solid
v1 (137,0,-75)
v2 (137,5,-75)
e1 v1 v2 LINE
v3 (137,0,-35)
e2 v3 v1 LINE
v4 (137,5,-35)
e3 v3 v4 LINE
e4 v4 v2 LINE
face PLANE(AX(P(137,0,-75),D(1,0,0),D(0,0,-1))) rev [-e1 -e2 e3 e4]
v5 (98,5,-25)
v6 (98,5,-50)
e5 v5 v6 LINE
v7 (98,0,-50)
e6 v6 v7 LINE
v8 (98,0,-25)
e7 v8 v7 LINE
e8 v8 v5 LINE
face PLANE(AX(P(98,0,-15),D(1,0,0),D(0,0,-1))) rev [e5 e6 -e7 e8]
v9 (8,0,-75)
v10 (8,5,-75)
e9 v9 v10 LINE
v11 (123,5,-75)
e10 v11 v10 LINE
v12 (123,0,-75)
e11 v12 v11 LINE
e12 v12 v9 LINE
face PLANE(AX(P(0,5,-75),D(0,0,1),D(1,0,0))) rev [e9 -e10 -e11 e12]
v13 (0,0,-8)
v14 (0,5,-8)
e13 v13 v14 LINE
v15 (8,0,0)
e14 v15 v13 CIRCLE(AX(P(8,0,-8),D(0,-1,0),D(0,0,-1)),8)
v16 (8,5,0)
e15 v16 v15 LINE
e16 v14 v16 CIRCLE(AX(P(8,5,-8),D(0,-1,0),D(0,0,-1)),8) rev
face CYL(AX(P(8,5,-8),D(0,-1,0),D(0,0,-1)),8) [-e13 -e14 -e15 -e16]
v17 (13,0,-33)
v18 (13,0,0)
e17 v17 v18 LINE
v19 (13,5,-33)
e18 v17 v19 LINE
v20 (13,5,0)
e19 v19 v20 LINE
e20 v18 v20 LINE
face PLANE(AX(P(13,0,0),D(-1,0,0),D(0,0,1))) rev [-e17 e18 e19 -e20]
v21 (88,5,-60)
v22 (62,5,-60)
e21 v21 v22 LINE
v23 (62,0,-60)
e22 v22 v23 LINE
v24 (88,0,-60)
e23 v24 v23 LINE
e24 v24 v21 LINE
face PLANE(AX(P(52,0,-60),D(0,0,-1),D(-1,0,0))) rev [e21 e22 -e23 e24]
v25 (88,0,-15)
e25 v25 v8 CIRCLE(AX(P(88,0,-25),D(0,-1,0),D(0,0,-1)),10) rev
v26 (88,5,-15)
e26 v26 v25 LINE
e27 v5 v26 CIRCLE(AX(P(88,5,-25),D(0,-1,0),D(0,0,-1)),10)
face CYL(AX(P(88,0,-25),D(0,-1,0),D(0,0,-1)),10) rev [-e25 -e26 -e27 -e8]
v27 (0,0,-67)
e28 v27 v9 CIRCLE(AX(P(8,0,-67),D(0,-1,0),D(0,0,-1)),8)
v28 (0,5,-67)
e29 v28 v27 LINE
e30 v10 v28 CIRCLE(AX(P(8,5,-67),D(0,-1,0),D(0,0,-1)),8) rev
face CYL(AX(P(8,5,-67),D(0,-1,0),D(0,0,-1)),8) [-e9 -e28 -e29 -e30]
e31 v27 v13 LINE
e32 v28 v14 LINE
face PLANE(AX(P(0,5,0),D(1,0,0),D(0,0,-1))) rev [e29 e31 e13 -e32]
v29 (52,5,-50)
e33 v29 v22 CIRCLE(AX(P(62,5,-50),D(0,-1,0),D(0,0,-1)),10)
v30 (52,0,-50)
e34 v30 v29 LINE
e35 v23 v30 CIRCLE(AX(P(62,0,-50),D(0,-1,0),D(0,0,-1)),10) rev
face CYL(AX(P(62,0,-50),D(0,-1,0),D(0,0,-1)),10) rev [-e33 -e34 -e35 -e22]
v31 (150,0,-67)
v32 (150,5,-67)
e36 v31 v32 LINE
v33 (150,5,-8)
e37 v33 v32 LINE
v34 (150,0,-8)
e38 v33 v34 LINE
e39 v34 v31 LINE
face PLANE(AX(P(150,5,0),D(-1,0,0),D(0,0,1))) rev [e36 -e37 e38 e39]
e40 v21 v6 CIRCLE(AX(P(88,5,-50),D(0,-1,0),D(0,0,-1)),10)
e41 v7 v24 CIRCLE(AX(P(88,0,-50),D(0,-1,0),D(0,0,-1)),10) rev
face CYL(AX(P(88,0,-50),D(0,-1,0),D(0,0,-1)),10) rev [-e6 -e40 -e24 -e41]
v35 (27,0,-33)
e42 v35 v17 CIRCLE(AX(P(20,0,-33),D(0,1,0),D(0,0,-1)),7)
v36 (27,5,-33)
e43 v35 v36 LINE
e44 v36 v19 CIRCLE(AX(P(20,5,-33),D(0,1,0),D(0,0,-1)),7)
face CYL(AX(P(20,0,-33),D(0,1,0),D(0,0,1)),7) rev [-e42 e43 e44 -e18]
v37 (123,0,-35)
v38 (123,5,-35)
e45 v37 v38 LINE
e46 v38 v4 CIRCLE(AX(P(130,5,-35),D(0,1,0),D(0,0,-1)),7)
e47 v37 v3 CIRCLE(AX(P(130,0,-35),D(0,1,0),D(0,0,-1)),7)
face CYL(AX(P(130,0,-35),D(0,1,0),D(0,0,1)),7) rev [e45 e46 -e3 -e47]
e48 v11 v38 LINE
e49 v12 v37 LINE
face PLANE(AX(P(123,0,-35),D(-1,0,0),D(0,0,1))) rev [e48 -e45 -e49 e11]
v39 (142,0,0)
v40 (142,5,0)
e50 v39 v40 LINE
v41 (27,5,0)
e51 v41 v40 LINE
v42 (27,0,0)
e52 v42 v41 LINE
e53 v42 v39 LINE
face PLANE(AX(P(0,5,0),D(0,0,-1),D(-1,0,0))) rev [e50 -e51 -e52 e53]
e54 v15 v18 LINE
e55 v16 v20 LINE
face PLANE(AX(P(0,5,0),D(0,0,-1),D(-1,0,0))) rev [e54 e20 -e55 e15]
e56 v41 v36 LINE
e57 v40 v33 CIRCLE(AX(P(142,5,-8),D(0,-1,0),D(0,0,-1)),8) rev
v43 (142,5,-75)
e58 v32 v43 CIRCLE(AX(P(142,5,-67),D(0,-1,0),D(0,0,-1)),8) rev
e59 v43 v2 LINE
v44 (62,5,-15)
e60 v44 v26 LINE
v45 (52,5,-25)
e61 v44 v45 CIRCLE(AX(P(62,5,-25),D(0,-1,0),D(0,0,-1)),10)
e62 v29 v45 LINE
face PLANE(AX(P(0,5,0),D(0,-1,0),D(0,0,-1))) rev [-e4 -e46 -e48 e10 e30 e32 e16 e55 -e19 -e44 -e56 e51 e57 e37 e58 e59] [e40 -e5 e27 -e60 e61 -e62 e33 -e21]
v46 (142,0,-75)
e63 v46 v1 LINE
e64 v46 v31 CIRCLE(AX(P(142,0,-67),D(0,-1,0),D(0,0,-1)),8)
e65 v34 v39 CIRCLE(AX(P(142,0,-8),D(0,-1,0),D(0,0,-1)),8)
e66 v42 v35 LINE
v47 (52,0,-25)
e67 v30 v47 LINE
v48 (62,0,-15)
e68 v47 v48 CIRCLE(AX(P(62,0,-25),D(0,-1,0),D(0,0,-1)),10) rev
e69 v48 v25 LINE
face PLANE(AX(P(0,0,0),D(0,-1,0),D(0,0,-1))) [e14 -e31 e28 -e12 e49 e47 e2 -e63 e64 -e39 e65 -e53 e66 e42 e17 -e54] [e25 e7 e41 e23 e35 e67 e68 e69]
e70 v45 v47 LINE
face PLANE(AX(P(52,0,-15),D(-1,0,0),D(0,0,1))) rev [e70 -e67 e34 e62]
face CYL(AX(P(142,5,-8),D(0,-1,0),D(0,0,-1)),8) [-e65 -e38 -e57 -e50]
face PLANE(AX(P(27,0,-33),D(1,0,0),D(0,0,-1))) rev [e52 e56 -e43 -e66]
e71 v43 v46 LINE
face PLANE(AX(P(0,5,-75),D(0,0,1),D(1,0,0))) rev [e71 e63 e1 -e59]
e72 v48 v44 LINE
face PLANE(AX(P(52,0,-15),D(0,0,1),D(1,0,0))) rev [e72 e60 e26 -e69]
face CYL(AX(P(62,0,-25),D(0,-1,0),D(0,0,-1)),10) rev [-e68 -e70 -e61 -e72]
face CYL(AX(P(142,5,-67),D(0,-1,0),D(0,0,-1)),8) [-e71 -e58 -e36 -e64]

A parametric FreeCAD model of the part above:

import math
import FreeCAD as App
import Part
import Sketcher

V = App.Vector


def edges_at(feature, points):
    """Names of the edges that pass closest to the given points."""
    edges = feature.Shape.Edges
    near = lambda p: min(range(len(edges)), key=lambda i: edges[i].distToShape(Part.Vertex(*p))[0])
    return sorted({f"Edge{near(p) + 1}" for p in points})


def add_polygon(sketch, points):
    """Adds a closed chain of lines whose ends are joined by coincident constraints."""
    first, n = sketch.GeometryCount, len(points)
    for a, b in zip(points, points[1:] + points[:1]):
        sketch.addGeometry(Part.LineSegment(App.Vector(*a, 0), App.Vector(*b, 0)), False)
    for i in range(n):
        sketch.addConstraint(Sketcher.Constraint("Coincident", first + i, 2, first + (i + 1) % n, 1))

doc = App.newDocument("Part")
body = doc.addObject("PartDesign::Body", "Body")

sketch1 = body.newObject("Sketcher::SketchObject", "Sketch")
sketch1.AttachmentSupport = (doc.getObject("XZ_Plane"), [""])
sketch1.MapMode = "FlatFace"
add_polygon(sketch1, [(0, -75), (0, 0), (150, 0), (150, -75)])
sketch1.addConstraint(Sketcher.Constraint("Vertical", 0))
sketch1.addConstraint(Sketcher.Constraint("Horizontal", 1))
sketch1.addConstraint(Sketcher.Constraint("Vertical", 2))
sketch1.addConstraint(Sketcher.Constraint("Horizontal", 3))
sketch1.addConstraint(Sketcher.Constraint("Coincident", 0, 2, -1, 1))
sketch1.addConstraint(Sketcher.Constraint("DistanceX", 1, 1, 1, 2, 150.0))
sketch1.addConstraint(Sketcher.Constraint("DistanceY", 0, 1, 0, 2, 75.0))
pad1 = body.newObject("PartDesign::Pad", "Pad")
pad1.Profile = sketch1
pad1.Length = 5
pad1.Reversed = True

sketch2 = body.newObject("Sketcher::SketchObject", "Sketch001")
sketch2.AttachmentSupport = (doc.getObject("XZ_Plane"), [""])
sketch2.MapMode = "FlatFace"
sketch2.AttachmentOffset = App.Placement(V(0, 0, -5), App.Rotation())
sketch2.addGeometry(Part.LineSegment(V(13, -33, 0), V(13, 0, 0)), False)
sketch2.addGeometry(Part.LineSegment(V(13, 0, 0), V(27, 0, 0)), False)
sketch2.addGeometry(Part.LineSegment(V(27, 0, 0), V(27, -33, 0)), False)
sketch2.addGeometry(Part.ArcOfCircle(Part.Circle(V(20, -33, 0), V(0, 0, 1), 7), math.radians(180), math.radians(360)), False)
sketch2.addConstraint(Sketcher.Constraint("Coincident", 0, 2, 1, 1))
sketch2.addConstraint(Sketcher.Constraint("Coincident", 1, 2, 2, 1))
sketch2.addConstraint(Sketcher.Constraint("Tangent", 2, 2, 3, 2))
sketch2.addConstraint(Sketcher.Constraint("Tangent", 3, 1, 0, 1))
sketch2.addConstraint(Sketcher.Constraint("Vertical", 0))
sketch2.addConstraint(Sketcher.Constraint("Horizontal", 1))
sketch2.addConstraint(Sketcher.Constraint("Vertical", 2))
sketch2.addConstraint(Sketcher.Constraint("PointOnObject", 0, 2, -1))
sketch2.addConstraint(Sketcher.Constraint("Radius", 3, 7.0))
sketch2.addConstraint(Sketcher.Constraint("DistanceY", 0, 1, 0, 2, 33.0))
sketch2.addConstraint(Sketcher.Constraint("DistanceX", -1, 1, 3, 3, 20.0))
pocket1 = body.newObject("PartDesign::Pocket", "Pocket")
pocket1.Profile = sketch2
pocket1.Type = "ThroughAll"
pocket1.Reversed = True

sketch3 = body.newObject("Sketcher::SketchObject", "Sketch002")
sketch3.AttachmentSupport = (doc.getObject("XZ_Plane"), [""])
sketch3.MapMode = "FlatFace"
sketch3.AttachmentOffset = App.Placement(V(0, 0, -5), App.Rotation())
sketch3.addGeometry(Part.LineSegment(V(137, -35, 0), V(137, -75, 0)), False)
sketch3.addGeometry(Part.LineSegment(V(137, -75, 0), V(123, -75, 0)), False)
sketch3.addGeometry(Part.LineSegment(V(123, -75, 0), V(123, -35, 0)), False)
sketch3.addGeometry(Part.ArcOfCircle(Part.Circle(V(130, -35, 0), V(0, 0, 1), 7), math.radians(0), math.radians(180)), False)
sketch3.addConstraint(Sketcher.Constraint("Coincident", 0, 2, 1, 1))
sketch3.addConstraint(Sketcher.Constraint("Coincident", 1, 2, 2, 1))
sketch3.addConstraint(Sketcher.Constraint("Tangent", 2, 2, 3, 2))
sketch3.addConstraint(Sketcher.Constraint("Tangent", 3, 1, 0, 1))
sketch3.addConstraint(Sketcher.Constraint("Vertical", 0))
sketch3.addConstraint(Sketcher.Constraint("Horizontal", 1))
sketch3.addConstraint(Sketcher.Constraint("Vertical", 2))
sketch3.addConstraint(Sketcher.Constraint("Radius", 3, 7.0))
sketch3.addConstraint(Sketcher.Constraint("DistanceY", 0, 2, 0, 1, 40.0))
sketch3.addConstraint(Sketcher.Constraint("DistanceX", -1, 1, 3, 3, 130.0))
sketch3.addConstraint(Sketcher.Constraint("DistanceY", 3, 3, -1, 1, 35.0))
pocket2 = body.newObject("PartDesign::Pocket", "Pocket001")
pocket2.Profile = sketch3
pocket2.Type = "ThroughAll"
pocket2.Reversed = True

sketch4 = body.newObject("Sketcher::SketchObject", "Sketch003")
sketch4.AttachmentSupport = (doc.getObject("XZ_Plane"), [""])
sketch4.MapMode = "FlatFace"
sketch4.AttachmentOffset = App.Placement(V(0, 0, -5), App.Rotation())
add_polygon(sketch4, [(52, -60), (52, -15), (98, -15), (98, -60)])
sketch4.addConstraint(Sketcher.Constraint("Vertical", 0))
sketch4.addConstraint(Sketcher.Constraint("Horizontal", 1))
sketch4.addConstraint(Sketcher.Constraint("Vertical", 2))
sketch4.addConstraint(Sketcher.Constraint("Horizontal", 3))
sketch4.addConstraint(Sketcher.Constraint("DistanceX", 1, 1, 1, 2, 46.0))
sketch4.addConstraint(Sketcher.Constraint("DistanceY", 0, 1, 0, 2, 45.0))
sketch4.addConstraint(Sketcher.Constraint("DistanceX", -1, 1, 0, 2, 52.0))
sketch4.addConstraint(Sketcher.Constraint("DistanceY", 0, 2, -1, 1, 15.0))
pocket3 = body.newObject("PartDesign::Pocket", "Pocket002")
pocket3.Profile = sketch4
pocket3.Type = "ThroughAll"
pocket3.Reversed = True
doc.recompute()

fillet = body.newObject("PartDesign::Fillet", "Fillet")
fillet.Base = (pocket3, edges_at(pocket3, [
    (52, 2.5, -15),
    (52, 2.5, -60),
    (98, 2.5, -60),
    (98, 2.5, -15),
]))
fillet.Radius = 10
doc.recompute()

fillet2 = body.newObject("PartDesign::Fillet", "Fillet001")
fillet2.Base = (fillet, edges_at(fillet, [
    (0, 2.5, -75),
    (150, 2.5, -75),
    (150, 2.5, 0),
    (0, 2.5, 0),
]))
fillet2.Radius = 8

doc.recompute()
